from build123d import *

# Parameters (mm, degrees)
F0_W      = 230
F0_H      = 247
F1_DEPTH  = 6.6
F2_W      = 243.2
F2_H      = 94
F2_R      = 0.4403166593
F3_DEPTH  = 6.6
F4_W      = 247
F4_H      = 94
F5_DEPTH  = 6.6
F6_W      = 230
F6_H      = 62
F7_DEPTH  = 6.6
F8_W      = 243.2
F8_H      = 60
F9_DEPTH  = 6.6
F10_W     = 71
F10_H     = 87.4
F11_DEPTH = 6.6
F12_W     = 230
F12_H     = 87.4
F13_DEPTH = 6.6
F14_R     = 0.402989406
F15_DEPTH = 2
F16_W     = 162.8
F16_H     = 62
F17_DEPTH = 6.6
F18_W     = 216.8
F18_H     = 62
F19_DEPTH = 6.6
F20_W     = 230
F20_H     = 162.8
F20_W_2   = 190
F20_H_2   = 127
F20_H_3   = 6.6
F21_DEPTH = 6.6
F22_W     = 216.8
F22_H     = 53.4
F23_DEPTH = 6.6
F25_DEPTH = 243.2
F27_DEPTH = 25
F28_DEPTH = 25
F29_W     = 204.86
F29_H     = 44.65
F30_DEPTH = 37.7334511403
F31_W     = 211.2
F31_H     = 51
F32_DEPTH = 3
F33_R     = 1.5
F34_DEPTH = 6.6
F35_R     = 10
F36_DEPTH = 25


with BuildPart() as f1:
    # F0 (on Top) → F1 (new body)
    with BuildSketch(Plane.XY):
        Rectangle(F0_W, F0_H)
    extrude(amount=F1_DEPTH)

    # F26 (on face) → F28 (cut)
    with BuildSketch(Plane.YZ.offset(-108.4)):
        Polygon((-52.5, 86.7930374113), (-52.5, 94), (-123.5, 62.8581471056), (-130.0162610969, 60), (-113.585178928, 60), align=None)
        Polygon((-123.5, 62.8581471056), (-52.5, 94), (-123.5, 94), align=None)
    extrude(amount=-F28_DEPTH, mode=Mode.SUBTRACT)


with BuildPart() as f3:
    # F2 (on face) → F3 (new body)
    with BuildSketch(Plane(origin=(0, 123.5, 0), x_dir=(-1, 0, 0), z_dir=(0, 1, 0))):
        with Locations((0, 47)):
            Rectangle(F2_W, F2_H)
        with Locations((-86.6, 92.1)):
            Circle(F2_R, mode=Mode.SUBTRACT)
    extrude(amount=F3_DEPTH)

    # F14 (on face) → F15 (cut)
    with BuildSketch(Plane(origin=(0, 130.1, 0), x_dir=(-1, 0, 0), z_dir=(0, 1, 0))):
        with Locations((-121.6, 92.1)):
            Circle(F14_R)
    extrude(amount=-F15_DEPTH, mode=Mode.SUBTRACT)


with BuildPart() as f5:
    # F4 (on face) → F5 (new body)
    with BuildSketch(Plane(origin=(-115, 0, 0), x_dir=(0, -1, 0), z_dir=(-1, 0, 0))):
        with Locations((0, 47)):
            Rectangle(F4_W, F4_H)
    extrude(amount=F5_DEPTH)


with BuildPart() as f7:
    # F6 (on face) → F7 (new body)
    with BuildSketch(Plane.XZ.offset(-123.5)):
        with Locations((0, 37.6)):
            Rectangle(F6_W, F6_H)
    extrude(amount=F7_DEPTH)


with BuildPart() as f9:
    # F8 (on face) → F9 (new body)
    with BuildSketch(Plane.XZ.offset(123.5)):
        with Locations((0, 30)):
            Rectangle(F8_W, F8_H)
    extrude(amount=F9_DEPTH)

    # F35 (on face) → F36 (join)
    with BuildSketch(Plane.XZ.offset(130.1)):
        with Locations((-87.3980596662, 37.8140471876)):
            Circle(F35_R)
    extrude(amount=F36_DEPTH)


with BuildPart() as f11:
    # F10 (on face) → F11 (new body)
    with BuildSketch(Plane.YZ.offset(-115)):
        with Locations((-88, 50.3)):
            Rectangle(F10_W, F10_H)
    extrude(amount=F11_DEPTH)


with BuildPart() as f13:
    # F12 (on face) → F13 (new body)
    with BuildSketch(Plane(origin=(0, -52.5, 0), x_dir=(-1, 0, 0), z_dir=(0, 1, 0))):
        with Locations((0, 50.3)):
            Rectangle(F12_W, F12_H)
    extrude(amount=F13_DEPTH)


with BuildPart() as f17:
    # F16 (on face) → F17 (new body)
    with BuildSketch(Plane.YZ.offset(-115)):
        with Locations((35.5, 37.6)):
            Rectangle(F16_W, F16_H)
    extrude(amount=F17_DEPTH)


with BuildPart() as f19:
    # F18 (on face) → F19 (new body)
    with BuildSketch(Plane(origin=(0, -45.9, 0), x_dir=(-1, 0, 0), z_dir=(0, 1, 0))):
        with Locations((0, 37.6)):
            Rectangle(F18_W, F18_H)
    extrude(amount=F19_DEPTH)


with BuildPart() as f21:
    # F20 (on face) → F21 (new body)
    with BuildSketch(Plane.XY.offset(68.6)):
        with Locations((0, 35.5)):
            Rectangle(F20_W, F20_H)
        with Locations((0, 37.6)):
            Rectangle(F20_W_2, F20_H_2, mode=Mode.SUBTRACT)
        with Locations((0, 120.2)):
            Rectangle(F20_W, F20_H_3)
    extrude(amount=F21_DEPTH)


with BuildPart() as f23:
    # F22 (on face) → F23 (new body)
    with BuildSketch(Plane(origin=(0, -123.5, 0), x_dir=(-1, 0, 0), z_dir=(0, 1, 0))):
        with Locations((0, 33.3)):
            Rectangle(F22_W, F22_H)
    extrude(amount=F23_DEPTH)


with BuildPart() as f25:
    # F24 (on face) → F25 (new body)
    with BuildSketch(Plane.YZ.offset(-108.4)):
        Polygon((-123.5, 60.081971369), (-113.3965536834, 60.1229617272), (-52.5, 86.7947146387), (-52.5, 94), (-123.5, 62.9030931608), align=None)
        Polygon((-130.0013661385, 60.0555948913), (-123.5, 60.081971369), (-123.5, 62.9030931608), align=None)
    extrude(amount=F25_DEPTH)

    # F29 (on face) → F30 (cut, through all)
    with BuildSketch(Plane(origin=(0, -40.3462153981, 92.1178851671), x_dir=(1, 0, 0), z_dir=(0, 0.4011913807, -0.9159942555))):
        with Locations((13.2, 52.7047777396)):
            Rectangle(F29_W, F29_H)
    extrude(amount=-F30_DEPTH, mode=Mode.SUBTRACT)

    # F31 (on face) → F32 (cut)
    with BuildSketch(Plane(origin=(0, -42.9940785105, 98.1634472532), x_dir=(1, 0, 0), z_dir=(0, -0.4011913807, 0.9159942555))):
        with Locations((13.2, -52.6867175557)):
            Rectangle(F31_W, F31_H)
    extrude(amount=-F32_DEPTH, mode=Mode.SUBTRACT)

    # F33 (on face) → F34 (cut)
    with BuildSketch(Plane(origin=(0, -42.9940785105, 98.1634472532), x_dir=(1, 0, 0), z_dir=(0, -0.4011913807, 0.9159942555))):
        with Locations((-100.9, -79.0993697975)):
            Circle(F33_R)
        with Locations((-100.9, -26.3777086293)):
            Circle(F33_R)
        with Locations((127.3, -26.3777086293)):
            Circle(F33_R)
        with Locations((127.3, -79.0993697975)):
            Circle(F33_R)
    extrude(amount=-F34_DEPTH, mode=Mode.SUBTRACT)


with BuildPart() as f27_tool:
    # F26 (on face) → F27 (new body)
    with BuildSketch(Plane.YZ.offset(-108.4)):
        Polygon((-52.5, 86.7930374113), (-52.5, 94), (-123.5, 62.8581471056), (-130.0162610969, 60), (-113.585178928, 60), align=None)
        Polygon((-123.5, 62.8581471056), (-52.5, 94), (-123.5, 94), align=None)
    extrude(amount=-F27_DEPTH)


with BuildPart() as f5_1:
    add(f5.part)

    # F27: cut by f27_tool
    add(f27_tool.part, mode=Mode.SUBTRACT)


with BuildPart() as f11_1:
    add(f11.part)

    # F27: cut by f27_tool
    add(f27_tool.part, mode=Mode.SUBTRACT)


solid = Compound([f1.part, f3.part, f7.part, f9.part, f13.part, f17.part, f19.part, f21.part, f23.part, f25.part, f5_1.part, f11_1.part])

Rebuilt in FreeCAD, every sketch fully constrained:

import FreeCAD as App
import Part
import Sketcher

V = App.Vector
Q = App.Units.Quantity

doc = App.newDocument("Part")
body = doc.addObject("PartDesign::Body", "Body")

sketch1 = body.newObject("Sketcher::SketchObject", "Sketch")
sketch1.AttachmentSupport = (doc.getObject("XY_Plane"), [""])
sketch1.MapMode = "FlatFace"
sketch1.addGeometry([
    Part.LineSegment(V(-115, 124, 0), V(-115, -124, 0)),
    Part.LineSegment(V(-115, -124, 0), V(115, -124, 0)),
    Part.LineSegment(V(115, -124, 0), V(115, 124, 0)),
    Part.LineSegment(V(115, 124, 0), V(-115, 124, 0)),
], False)
sketch1.addConstraint([
    Sketcher.Constraint("Coincident", 0, 2, 1, 1),
    Sketcher.Constraint("Coincident", 1, 2, 2, 1),
    Sketcher.Constraint("Coincident", 2, 2, 3, 1),
    Sketcher.Constraint("Coincident", 3, 2, 0, 1),
    Sketcher.Constraint("Vertical", 0),
    Sketcher.Constraint("Horizontal", 1),
    Sketcher.Constraint("Vertical", 2),
    Sketcher.Constraint("Horizontal", 3),
    Sketcher.Constraint("Symmetric", 0, 2, 2, 2, -1, 1),
    Sketcher.Constraint("DistanceX", 1, 1, 1, 2, Q("230 mm")),
    Sketcher.Constraint("DistanceY", 0, 2, 0, 1, Q("247 mm")),
])
pad1 = body.newObject("PartDesign::Pad", "Pad")
pad1.Profile = sketch1
pad1.Length = 6.6

sketch2 = body.newObject("Sketcher::SketchObject", "Sketch001")
sketch2.AttachmentSupport = (doc.getObject("YZ_Plane"), [""])
sketch2.MapMode = "FlatFace"
sketch2.AttachmentOffset = App.Placement(V(0, 0, -108.4), App.Rotation())
sketch2.addGeometry([
    Part.LineSegment(V(-52, 87, 0), V(-52, 94, 0)),
    Part.LineSegment(V(-52, 94, 0), V(-124, 94, 0)),
    Part.LineSegment(V(-124, 94, 0), V(-124, 63, 0)),
    Part.LineSegment(V(-124, 63, 0), V(-130, 60, 0)),
    Part.LineSegment(V(-130, 60, 0), V(-114, 60, 0)),
    Part.LineSegment(V(-114, 60, 0), V(-52, 87, 0)),
], False)
sketch2.addConstraint([
    Sketcher.Constraint("Coincident", 0, 2, 1, 1),
    Sketcher.Constraint("Coincident", 1, 2, 2, 1),
    Sketcher.Constraint("Coincident", 2, 2, 3, 1),
    Sketcher.Constraint("Coincident", 3, 2, 4, 1),
    Sketcher.Constraint("Coincident", 4, 2, 5, 1),
    Sketcher.Constraint("Coincident", 5, 2, 0, 1),
    Sketcher.Constraint("Vertical", 0),
    Sketcher.Constraint("Horizontal", 1),
    Sketcher.Constraint("Vertical", 2),
    Sketcher.Constraint("Horizontal", 4),
    Sketcher.Constraint("Parallel", 3, 5),
    Sketcher.Constraint("DistanceX", 1, 2, 1, 1, Q("71 mm")),
    Sketcher.Constraint("DistanceY", -1, 1, 0, 2, Q("94 mm")),
    Sketcher.Constraint("DistanceY", -1, 1, 3, 2, Q("60 mm")),
    Sketcher.Constraint("DistanceX", 0, 2, -1, 1, Q("52.5 mm")),
    Sketcher.Constraint("Distance", 5, Q("66.702818 mm")),
    Sketcher.Constraint("DistanceX", 4, 1, 4, 2, Q("16.431082 mm")),
    Sketcher.Constraint("DistanceY", 0, 1, 0, 2, Q("7.206963 mm")),
])
pocket1 = body.newObject("PartDesign::Pocket", "Pocket")
pocket1.Profile = sketch2
pocket1.Length = 25
body2 = doc.addObject("PartDesign::Body", "Body001")

sketch3 = body2.newObject("Sketcher::SketchObject", "Sketch002")
sketch3.AttachmentSupport = (doc.getObject("XZ_Plane001"), [""])
sketch3.MapMode = "FlatFace"
sketch3.AttachmentOffset = App.Placement(V(0, 0, -123.5), App.Rotation())
sketch3.addGeometry([
    Part.LineSegment(V(121.6, 94, 0), V(121.6, 0, 0)),
    Part.LineSegment(V(121.6, 0, 0), V(-121.6, 0, 0)),
    Part.LineSegment(V(-121.6, 0, 0), V(-121.6, 94, 0)),
    Part.LineSegment(V(-121.6, 94, 0), V(121.6, 94, 0)),
    Part.Circle(V(86.6, 92.1, 0), V(0, 0, 1), 0.44),
], False)
sketch3.addConstraint([
    Sketcher.Constraint("Coincident", 0, 2, 1, 1),
    Sketcher.Constraint("Coincident", 1, 2, 2, 1),
    Sketcher.Constraint("Coincident", 2, 2, 3, 1),
    Sketcher.Constraint("Coincident", 3, 2, 0, 1),
    Sketcher.Constraint("Vertical", 0),
    Sketcher.Constraint("Horizontal", 1),
    Sketcher.Constraint("Vertical", 2),
    Sketcher.Constraint("Horizontal", 3),
    Sketcher.Constraint("Symmetric", 0, 2, 1, 2, -1, 1),
    Sketcher.Constraint("DistanceY", 0, 2, 0, 1, Q("94 mm")),
    Sketcher.Constraint("DistanceX", 1, 2, 1, 1, Q("243.2 mm")),
    Sketcher.Constraint("DistanceX", 4, 3, 0, 2, Q("35 mm")),
    Sketcher.Constraint("DistanceY", -1, 1, 4, 3, Q("92.1 mm")),
    Sketcher.Constraint("Diameter", 4, Q("0.880633 mm")),
])
pad2 = body2.newObject("PartDesign::Pad", "Pad001")
pad2.Profile = sketch3
pad2.Length = 6.6
pad2.Reversed = True

sketch4 = body2.newObject("Sketcher::SketchObject", "Sketch003")
sketch4.AttachmentSupport = (doc.getObject("XZ_Plane001"), [""])
sketch4.MapMode = "FlatFace"
sketch4.AttachmentOffset = App.Placement(V(0, 0, -130.1), App.Rotation())
sketch4.addGeometry(Part.Circle(V(121.6, 92.1, 0), V(0, 0, 1), 0.4), False)
sketch4.addConstraint([
    Sketcher.Constraint("DistanceX", -1, 1, 0, 3, Q("121.6 mm")),
    Sketcher.Constraint("DistanceY", -1, 1, 0, 3, Q("92.1 mm")),
    Sketcher.Constraint("Diameter", 0, Q("0.805979 mm")),
])
pocket2 = body2.newObject("PartDesign::Pocket", "Pocket001")
pocket2.Profile = sketch4
pocket2.Length = 2
pocket2.Reversed = True
body3 = doc.addObject("PartDesign::Body", "Body002")

sketch5 = body3.newObject("Sketcher::SketchObject", "Sketch004")
sketch5.AttachmentSupport = (doc.getObject("YZ_Plane002"), [""])
sketch5.MapMode = "FlatFace"
sketch5.AttachmentOffset = App.Placement(V(0, 0, -115), App.Rotation())
sketch5.addGeometry([
    Part.LineSegment(V(124, 94, 0), V(124, 0, 0)),
    Part.LineSegment(V(124, 0, 0), V(-124, 0, 0)),
    Part.LineSegment(V(-124, 0, 0), V(-124, 94, 0)),
    Part.LineSegment(V(-124, 94, 0), V(124, 94, 0)),
], False)
sketch5.addConstraint([
    Sketcher.Constraint("Coincident", 0, 2, 1, 1),
    Sketcher.Constraint("Coincident", 1, 2, 2, 1),
    Sketcher.Constraint("Coincident", 2, 2, 3, 1),
    Sketcher.Constraint("Coincident", 3, 2, 0, 1),
    Sketcher.Constraint("Vertical", 0),
    Sketcher.Constraint("Horizontal", 1),
    Sketcher.Constraint("Vertical", 2),
    Sketcher.Constraint("Horizontal", 3),
    Sketcher.Constraint("Symmetric", 0, 2, 1, 2, -1, 1),
    Sketcher.Constraint("DistanceX", 1, 2, 1, 1, Q("247 mm")),
    Sketcher.Constraint("DistanceY", 0, 2, 0, 1, Q("94 mm")),
])
pad3 = body3.newObject("PartDesign::Pad", "Pad002")
pad3.Profile = sketch5
pad3.Length = 6.6
pad3.Reversed = True
body4 = doc.addObject("PartDesign::Body", "Body003")

sketch6 = body4.newObject("Sketcher::SketchObject", "Sketch005")
sketch6.AttachmentSupport = (doc.getObject("XZ_Plane003"), [""])
sketch6.MapMode = "FlatFace"
sketch6.AttachmentOffset = App.Placement(V(0, 0, -123.5), App.Rotation())
sketch6.addGeometry([
    Part.LineSegment(V(-115, 69, 0), V(-115, 7, 0)),
    Part.LineSegment(V(-115, 7, 0), V(115, 7, 0)),
    Part.LineSegment(V(115, 7, 0), V(115, 69, 0)),
    Part.LineSegment(V(115, 69, 0), V(-115, 69, 0)),
], False)
sketch6.addConstraint([
    Sketcher.Constraint("Coincident", 0, 2, 1, 1),
    Sketcher.Constraint("Coincident", 1, 2, 2, 1),
    Sketcher.Constraint("Coincident", 2, 2, 3, 1),
    Sketcher.Constraint("Coincident", 3, 2, 0, 1),
    Sketcher.Constraint("Vertical", 0),
    Sketcher.Constraint("Horizontal", 1),
    Sketcher.Constraint("Vertical", 2),
    Sketcher.Constraint("Horizontal", 3),
    Sketcher.Constraint("DistanceX", 1, 1, 1, 2, Q("230 mm")),
    Sketcher.Constraint("DistanceY", 0, 2, 0, 1, Q("62 mm")),
    Sketcher.Constraint("DistanceX", 0, 2, -1, 1, Q("115 mm")),
    Sketcher.Constraint("DistanceY", -1, 1, 0, 2, Q("6.6 mm")),
])
pad4 = body4.newObject("PartDesign::Pad", "Pad003")
pad4.Profile = sketch6
pad4.Length = 6.6
body5 = doc.addObject("PartDesign::Body", "Body004")

sketch7 = body5.newObject("Sketcher::SketchObject", "Sketch006")
sketch7.AttachmentSupport = (doc.getObject("XZ_Plane004"), [""])
sketch7.MapMode = "FlatFace"
sketch7.AttachmentOffset = App.Placement(V(0, 0, 123.5), App.Rotation())
sketch7.addGeometry([
    Part.LineSegment(V(-122, 60, 0), V(-122, 0, 0)),
    Part.LineSegment(V(-122, 0, 0), V(122, 0, 0)),
    Part.LineSegment(V(122, 0, 0), V(122, 60, 0)),
    Part.LineSegment(V(122, 60, 0), V(-122, 60, 0)),
], False)
sketch7.addConstraint([
    Sketcher.Constraint("Coincident", 0, 2, 1, 1),
    Sketcher.Constraint("Coincident", 1, 2, 2, 1),
    Sketcher.Constraint("Coincident", 2, 2, 3, 1),
    Sketcher.Constraint("Coincident", 3, 2, 0, 1),
    Sketcher.Constraint("Vertical", 0),
    Sketcher.Constraint("Horizontal", 1),
    Sketcher.Constraint("Vertical", 2),
    Sketcher.Constraint("Horizontal", 3),
    Sketcher.Constraint("Symmetric", 0, 2, 1, 2, -1, 1),
    Sketcher.Constraint("DistanceY", 0, 2, 0, 1, Q("60 mm")),
    Sketcher.Constraint("DistanceX", 1, 1, 1, 2, Q("243.2 mm")),
])
pad5 = body5.newObject("PartDesign::Pad", "Pad004")
pad5.Profile = sketch7
pad5.Length = 6.6

sketch8 = body5.newObject("Sketcher::SketchObject", "Sketch007")
sketch8.AttachmentSupport = (doc.getObject("XZ_Plane004"), [""])
sketch8.MapMode = "FlatFace"
sketch8.AttachmentOffset = App.Placement(V(0, 0, 130.1), App.Rotation())
sketch8.addGeometry(Part.Circle(V(-87, 38, 0), V(0, 0, 1), 10), False)
sketch8.addConstraint([
    Sketcher.Constraint("Diameter", 0, Q("20 mm")),
    Sketcher.Constraint("DistanceX", 0, 3, -1, 1, Q("87.39806 mm")),
    Sketcher.Constraint("DistanceY", -1, 1, 0, 3, Q("37.814047 mm")),
])
pad6 = body5.newObject("PartDesign::Pad", "Pad005")
pad6.Profile = sketch8
pad6.Length = 25
body6 = doc.addObject("PartDesign::Body", "Body005")

sketch9 = body6.newObject("Sketcher::SketchObject", "Sketch008")
sketch9.AttachmentSupport = (doc.getObject("YZ_Plane005"), [""])
sketch9.MapMode = "FlatFace"
sketch9.AttachmentOffset = App.Placement(V(0, 0, -115), App.Rotation())
sketch9.addGeometry([
    Part.LineSegment(V(-124, 94, 0), V(-124, 7, 0)),
    Part.LineSegment(V(-124, 7, 0), V(-52, 7, 0)),
    Part.LineSegment(V(-52, 7, 0), V(-52, 94, 0)),
    Part.LineSegment(V(-52, 94, 0), V(-124, 94, 0)),
], False)
sketch9.addConstraint([
    Sketcher.Constraint("Coincident", 0, 2, 1, 1),
    Sketcher.Constraint("Coincident", 1, 2, 2, 1),
    Sketcher.Constraint("Coincident", 2, 2, 3, 1),
    Sketcher.Constraint("Coincident", 3, 2, 0, 1),
    Sketcher.Constraint("Vertical", 0),
    Sketcher.Constraint("Horizontal", 1),
    Sketcher.Constraint("Vertical", 2),
    Sketcher.Constraint("Horizontal", 3),
    Sketcher.Constraint("DistanceX", 1, 1, 1, 2, Q("71 mm")),
    Sketcher.Constraint("DistanceY", 0, 2, 0, 1, Q("87.4 mm")),
    Sketcher.Constraint("DistanceY", -1, 1, 2, 2, Q("94 mm")),
    Sketcher.Constraint("DistanceX", 0, 2, -1, 1, Q("123.5 mm")),
])
pad7 = body6.newObject("PartDesign::Pad", "Pad006")
pad7.Profile = sketch9
pad7.Length = 6.6
body7 = doc.addObject("PartDesign::Body", "Body006")

sketch10 = body7.newObject("Sketcher::SketchObject", "Sketch009")
sketch10.AttachmentSupport = (doc.getObject("XZ_Plane006"), [""])
sketch10.MapMode = "FlatFace"
sketch10.AttachmentOffset = App.Placement(V(0, 0, 52.5), App.Rotation())
sketch10.addGeometry([
    Part.LineSegment(V(115, 94, 0), V(115, 7, 0)),
    Part.LineSegment(V(115, 7, 0), V(-115, 7, 0)),
    Part.LineSegment(V(-115, 7, 0), V(-115, 94, 0)),
    Part.LineSegment(V(-115, 94, 0), V(115, 94, 0)),
], False)
sketch10.addConstraint([
    Sketcher.Constraint("Coincident", 0, 2, 1, 1),
    Sketcher.Constraint("Coincident", 1, 2, 2, 1),
    Sketcher.Constraint("Coincident", 2, 2, 3, 1),
    Sketcher.Constraint("Coincident", 3, 2, 0, 1),
    Sketcher.Constraint("Vertical", 0),
    Sketcher.Constraint("Horizontal", 1),
    Sketcher.Constraint("Vertical", 2),
    Sketcher.Constraint("Horizontal", 3),
    Sketcher.Constraint("DistanceX", 1, 2, 1, 1, Q("230 mm")),
    Sketcher.Constraint("DistanceY", 0, 2, 0, 1, Q("87.4 mm")),
    Sketcher.Constraint("DistanceX", -1, 1, 0, 2, Q("115 mm")),
    Sketcher.Constraint("DistanceY", -1, 1, 2, 2, Q("94 mm")),
])
pad8 = body7.newObject("PartDesign::Pad", "Pad007")
pad8.Profile = sketch10
pad8.Length = 6.6
pad8.Reversed = True
body8 = doc.addObject("PartDesign::Body", "Body007")

sketch11 = body8.newObject("Sketcher::SketchObject", "Sketch010")
sketch11.AttachmentSupport = (doc.getObject("YZ_Plane007"), [""])
sketch11.MapMode = "FlatFace"
sketch11.AttachmentOffset = App.Placement(V(0, 0, -115), App.Rotation())
sketch11.addGeometry([
    Part.LineSegment(V(-46, 69, 0), V(-46, 7, 0)),
    Part.LineSegment(V(-46, 7, 0), V(117, 7, 0)),
    Part.LineSegment(V(117, 7, 0), V(117, 69, 0)),
    Part.LineSegment(V(117, 69, 0), V(-46, 69, 0)),
], False)
sketch11.addConstraint([
    Sketcher.Constraint("Coincident", 0, 2, 1, 1),
    Sketcher.Constraint("Coincident", 1, 2, 2, 1),
    Sketcher.Constraint("Coincident", 2, 2, 3, 1),
    Sketcher.Constraint("Coincident", 3, 2, 0, 1),
    Sketcher.Constraint("Vertical", 0),
    Sketcher.Constraint("Horizontal", 1),
    Sketcher.Constraint("Vertical", 2),
    Sketcher.Constraint("Horizontal", 3),
    Sketcher.Constraint("DistanceY", 0, 2, 0, 1, Q("62 mm")),
    Sketcher.Constraint("DistanceX", 1, 1, 1, 2, Q("162.8 mm")),
    Sketcher.Constraint("DistanceX", 0, 2, -1, 1, Q("45.9 mm")),
    Sketcher.Constraint("DistanceY", -1, 1, 0, 2, Q("6.6 mm")),
])
pad9 = body8.newObject("PartDesign::Pad", "Pad008")
pad9.Profile = sketch11
pad9.Length = 6.6
body9 = doc.addObject("PartDesign::Body", "Body008")

sketch12 = body9.newObject("Sketcher::SketchObject", "Sketch011")
sketch12.AttachmentSupport = (doc.getObject("XZ_Plane008"), [""])
sketch12.MapMode = "FlatFace"
sketch12.AttachmentOffset = App.Placement(V(0, 0, 45.9), App.Rotation())
sketch12.addGeometry([
    Part.LineSegment(V(108, 69, 0), V(108, 7, 0)),
    Part.LineSegment(V(108, 7, 0), V(-108, 7, 0)),
    Part.LineSegment(V(-108, 7, 0), V(-108, 69, 0)),
    Part.LineSegment(V(-108, 69, 0), V(108, 69, 0)),
], False)
sketch12.addConstraint([
    Sketcher.Constraint("Coincident", 0, 2, 1, 1),
    Sketcher.Constraint("Coincident", 1, 2, 2, 1),
    Sketcher.Constraint("Coincident", 2, 2, 3, 1),
    Sketcher.Constraint("Coincident", 3, 2, 0, 1),
    Sketcher.Constraint("Vertical", 0),
    Sketcher.Constraint("Horizontal", 1),
    Sketcher.Constraint("Vertical", 2),
    Sketcher.Constraint("Horizontal", 3),
    Sketcher.Constraint("DistanceY", 0, 2, 0, 1, Q("62 mm")),
    Sketcher.Constraint("DistanceX", 1, 2, 1, 1, Q("216.8 mm")),
    Sketcher.Constraint("DistanceX", -1, 1, 0, 2, Q("108.4 mm")),
    Sketcher.Constraint("DistanceY", -1, 1, 0, 2, Q("6.6 mm")),
])
pad10 = body9.newObject("PartDesign::Pad", "Pad009")
pad10.Profile = sketch12
pad10.Length = 6.6
pad10.Reversed = True
body10 = doc.addObject("PartDesign::Body", "Body009")

sketch13 = body10.newObject("Sketcher::SketchObject", "Sketch012")
sketch13.AttachmentSupport = (doc.getObject("XY_Plane009"), [""])
sketch13.MapMode = "FlatFace"
sketch13.AttachmentOffset = App.Placement(V(0, 0, 68.6), App.Rotation())
sketch13.addGeometry([
    Part.LineSegment(V(-115, -46, 0), V(115, -46, 0)),
    Part.LineSegment(V(115, -46, 0), V(115, 124, 0)),
    Part.LineSegment(V(115, 124, 0), V(-115, 124, 0)),
    Part.LineSegment(V(-115, 124, 0), V(-115, -46, 0)),
    Part.LineSegment(V(95, -26, 0), V(-95, -26, 0)),
    Part.LineSegment(V(-95, -26, 0), V(-95, 101, 0)),
    Part.LineSegment(V(-95, 101, 0), V(95, 101, 0)),
    Part.LineSegment(V(95, 101, 0), V(95, -26, 0)),
], False)
sketch13.addConstraint([
    Sketcher.Constraint("Coincident", 0, 2, 1, 1),
    Sketcher.Constraint("Coincident", 1, 2, 2, 1),
    Sketcher.Constraint("Coincident", 2, 2, 3, 1),
    Sketcher.Constraint("Coincident", 3, 2, 0, 1),
    Sketcher.Constraint("Coincident", 4, 2, 5, 1),
    Sketcher.Constraint("Coincident", 5, 2, 6, 1),
    Sketcher.Constraint("Coincident", 6, 2, 7, 1),
    Sketcher.Constraint("Coincident", 7, 2, 4, 1),
    Sketcher.Constraint("Horizontal", 0),
    Sketcher.Constraint("Vertical", 1),
    Sketcher.Constraint("Horizontal", 2),
    Sketcher.Constraint("Vertical", 3),
    Sketcher.Constraint("Horizontal", 4),
    Sketcher.Constraint("Vertical", 5),
    Sketcher.Constraint("Horizontal", 6),
    Sketcher.Constraint("Vertical", 7),
    Sketcher.Constraint("DistanceX", 0, 1, 0, 2, Q("230 mm")),
    Sketcher.Constraint("DistanceX", 4, 2, 4, 1, Q("190 mm")),
    Sketcher.Constraint("DistanceY", 5, 1, 5, 2, Q("127 mm")),
    Sketcher.Constraint("DistanceY", 1, 1, 1, 2, Q("169.4 mm")),
    Sketcher.Constraint("DistanceX", -1, 1, 0, 2, Q("115 mm")),
    Sketcher.Constraint("DistanceX", 4, 2, -1, 1, Q("95 mm")),
    Sketcher.Constraint("DistanceY", 3, 2, 4, 2, Q("20 mm")),
    Sketcher.Constraint("DistanceY", 0, 2, -1, 1, Q("45.9 mm")),
])
pad11 = body10.newObject("PartDesign::Pad", "Pad010")
pad11.Profile = sketch13
pad11.Length = 6.6
body11 = doc.addObject("PartDesign::Body", "Body010")

sketch14 = body11.newObject("Sketcher::SketchObject", "Sketch013")
sketch14.AttachmentSupport = (doc.getObject("XZ_Plane010"), [""])
sketch14.MapMode = "FlatFace"
sketch14.AttachmentOffset = App.Placement(V(0, 0, 123.5), App.Rotation())
sketch14.addGeometry([
    Part.LineSegment(V(108, 60, 0), V(108, 7, 0)),
    Part.LineSegment(V(108, 7, 0), V(-108, 7, 0)),
    Part.LineSegment(V(-108, 7, 0), V(-108, 60, 0)),
    Part.LineSegment(V(-108, 60, 0), V(108, 60, 0)),
], False)
sketch14.addConstraint([
    Sketcher.Constraint("Coincident", 0, 2, 1, 1),
    Sketcher.Constraint("Coincident", 1, 2, 2, 1),
    Sketcher.Constraint("Coincident", 2, 2, 3, 1),
    Sketcher.Constraint("Coincident", 3, 2, 0, 1),
    Sketcher.Constraint("Vertical", 0),
    Sketcher.Constraint("Horizontal", 1),
    Sketcher.Constraint("Vertical", 2),
    Sketcher.Constraint("Horizontal", 3),
    Sketcher.Constraint("DistanceX", 1, 2, 1, 1, Q("216.8 mm")),
    Sketcher.Constraint("DistanceY", 0, 2, 0, 1, Q("53.4 mm")),
    Sketcher.Constraint("DistanceY", -1, 1, 2, 2, Q("60 mm")),
    Sketcher.Constraint("DistanceX", -1, 1, 0, 2, Q("108.4 mm")),
])
pad12 = body11.newObject("PartDesign::Pad", "Pad011")
pad12.Profile = sketch14
pad12.Length = 6.6
pad12.Reversed = True
body12 = doc.addObject("PartDesign::Body", "Body011")

sketch15 = body12.newObject("Sketcher::SketchObject", "Sketch014")
sketch15.AttachmentSupport = (doc.getObject("YZ_Plane011"), [""])
sketch15.MapMode = "FlatFace"
sketch15.AttachmentOffset = App.Placement(V(0, 0, -108.4), App.Rotation())
sketch15.addGeometry([
    Part.LineSegment(V(-124, 60, 0), V(-113, 60, 0)),
    Part.LineSegment(V(-113, 60, 0), V(-52, 87, 0)),
    Part.LineSegment(V(-52, 87, 0), V(-52, 94, 0)),
    Part.LineSegment(V(-52, 94, 0), V(-124, 63, 0)),
    Part.LineSegment(V(-124, 63, 0), V(-130, 60, 0)),
    Part.LineSegment(V(-130, 60, 0), V(-124, 60, 0)),
], False)
sketch15.addConstraint([
    Sketcher.Constraint("Coincident", 0, 2, 1, 1),
    Sketcher.Constraint("Coincident", 1, 2, 2, 1),
    Sketcher.Constraint("Coincident", 2, 2, 3, 1),
    Sketcher.Constraint("Coincident", 3, 2, 4, 1),
    Sketcher.Constraint("Coincident", 4, 2, 5, 1),
    Sketcher.Constraint("Coincident", 5, 2, 0, 1),
    Sketcher.Constraint("Vertical", 2),
    Sketcher.Constraint("Parallel", 1, 3),
    Sketcher.Constraint("Parallel", 3, 4),
    Sketcher.Constraint("Parallel", 0, 5),
    Sketcher.Constraint("Vertical", 3, 2, 5, 2),
    Sketcher.Constraint("DistanceY", -1, 1, 2, 2, Q("94 mm")),
    Sketcher.Constraint("DistanceX", 3, 2, 1, 2, Q("71 mm")),
    Sketcher.Constraint("DistanceX", 1, 2, -1, 1, Q("52.5 mm")),
    Sketcher.Constraint("DistanceY", 4, 2, 3, 2, Q("2.847498 mm")),
    Sketcher.Constraint("Distance", 0, Q("10.103529 mm")),
    Sketcher.Constraint("Distance", 1, Q("66.481371 mm")),
    Sketcher.Constraint("DistanceY", 2, 1, 2, 2, Q("7.205285 mm")),
])
pad13 = body12.newObject("PartDesign::Pad", "Pad012")
pad13.Profile = sketch15
pad13.Length = 243.2

sketch16 = body12.newObject("Sketcher::SketchObject", "Sketch015")
sketch16.Placement = App.Placement(V(0, -40.346215, 92.117885), App.Rotation(V(1, 0, 0), V(0, -0.915994255, -0.401191381), V(0, 0.401191381, -0.915994255), "ZXY"))
sketch16.addGeometry([
    Part.LineSegment(V(-89, 75, 0), V(-89, 30, 0)),
    Part.LineSegment(V(-89, 30, 0), V(116, 30, 0)),
    Part.LineSegment(V(116, 30, 0), V(116, 75, 0)),
    Part.LineSegment(V(116, 75, 0), V(-89, 75, 0)),
], False)
sketch16.addConstraint([
    Sketcher.Constraint("Coincident", 0, 2, 1, 1),
    Sketcher.Constraint("Coincident", 1, 2, 2, 1),
    Sketcher.Constraint("Coincident", 2, 2, 3, 1),
    Sketcher.Constraint("Coincident", 3, 2, 0, 1),
    Sketcher.Constraint("Vertical", 0),
    Sketcher.Constraint("Horizontal", 1),
    Sketcher.Constraint("Vertical", 2),
    Sketcher.Constraint("Horizontal", 3),
    Sketcher.Constraint("DistanceX", 1, 1, 1, 2, Q("204.86 mm")),
    Sketcher.Constraint("DistanceY", 0, 2, 0, 1, Q("44.65 mm")),
    Sketcher.Constraint("DistanceX", 0, 2, -1, 1, Q("89.23 mm")),
    Sketcher.Constraint("DistanceY", -1, 1, 0, 2, Q("30.379778 mm")),
])
pocket3 = body12.newObject("PartDesign::Pocket", "Pocket002")
pocket3.Profile = sketch16
pocket3.Type = "ThroughAll"

sketch17 = body12.newObject("Sketcher::SketchObject", "Sketch016")
sketch17.Placement = App.Placement(V(0, -42.994079, 98.163447), App.Rotation(V(1, 0, 0), V(0, 0.915994255, 0.401191381), V(0, -0.401191381, 0.915994255), "ZXY"))
sketch17.addGeometry([
    Part.LineSegment(V(-92, -27, 0), V(-92, -78, 0)),
    Part.LineSegment(V(-92, -78, 0), V(119, -78, 0)),
    Part.LineSegment(V(119, -78, 0), V(119, -27, 0)),
    Part.LineSegment(V(119, -27, 0), V(-92, -27, 0)),
], False)
sketch17.addConstraint([
    Sketcher.Constraint("Coincident", 0, 2, 1, 1),
    Sketcher.Constraint("Coincident", 1, 2, 2, 1),
    Sketcher.Constraint("Coincident", 2, 2, 3, 1),
    Sketcher.Constraint("Coincident", 3, 2, 0, 1),
    Sketcher.Constraint("Vertical", 0),
    Sketcher.Constraint("Horizontal", 1),
    Sketcher.Constraint("Vertical", 2),
    Sketcher.Constraint("Horizontal", 3),
    Sketcher.Constraint("DistanceY", 0, 2, 0, 1, Q("51 mm")),
    Sketcher.Constraint("DistanceX", 1, 1, 1, 2, Q("211.2 mm")),
    Sketcher.Constraint("DistanceX", 0, 2, -1, 1, Q("92.4 mm")),
    Sketcher.Constraint("DistanceY", 0, 2, -1, 1, Q("78.186718 mm")),
])
pocket4 = body12.newObject("PartDesign::Pocket", "Pocket003")
pocket4.Profile = sketch17
pocket4.Length = 3

sketch18 = body12.newObject("Sketcher::SketchObject", "Sketch017")
sketch18.Placement = App.Placement(V(0, -42.994079, 98.163447), App.Rotation(V(1, 0, 0), V(0, 0.915994255, 0.401191381), V(0, -0.401191381, 0.915994255), "ZXY"))
sketch18.addGeometry([
    Part.Circle(V(-100.9, -79.1, 0), V(0, 0, 1), 1.5),
    Part.Circle(V(-100.9, -26.4, 0), V(0, 0, 1), 1.5),
    Part.Circle(V(127.3, -26.4, 0), V(0, 0, 1), 1.5),
    Part.Circle(V(127.3, -79.1, 0), V(0, 0, 1), 1.5),
], False)
sketch18.addConstraint([
    Sketcher.Constraint("Equal", 0, 1),
    Sketcher.Constraint("Equal", 1, 2),
    Sketcher.Constraint("Equal", 2, 3),
    Sketcher.Constraint("Horizontal", 1, 3, 2, 3),
    Sketcher.Constraint("Horizontal", 0, 3, 3, 3),
    Sketcher.Constraint("Vertical", 0, 3, 1, 3),
    Sketcher.Constraint("Vertical", 2, 3, 3, 3),
    Sketcher.Constraint("Diameter", 0, Q("3 mm")),
    Sketcher.Constraint("DistanceX", 0, 3, -1, 1, Q("100.9 mm")),
    Sketcher.Constraint("DistanceX", -1, 1, 2, 3, Q("127.3 mm")),
    Sketcher.Constraint("DistanceY", 0, 3, -1, 1, Q("79.09937 mm")),
    Sketcher.Constraint("DistanceY", 1, 3, -1, 1, Q("26.377709 mm")),
])
pocket5 = body12.newObject("PartDesign::Pocket", "Pocket004")
pocket5.Profile = sketch18
pocket5.Length = 6.6
body13 = doc.addObject("PartDesign::Body", "Body012")

sketch19 = body13.newObject("Sketcher::SketchObject", "Sketch018")
sketch19.AttachmentSupport = (doc.getObject("YZ_Plane012"), [""])
sketch19.MapMode = "FlatFace"
sketch19.AttachmentOffset = App.Placement(V(0, 0, -108.4), App.Rotation())
sketch19.addGeometry([
    Part.LineSegment(V(-52, 87, 0), V(-52, 94, 0)),
    Part.LineSegment(V(-52, 94, 0), V(-124, 94, 0)),
    Part.LineSegment(V(-124, 94, 0), V(-124, 63, 0)),
    Part.LineSegment(V(-124, 63, 0), V(-130, 60, 0)),
    Part.LineSegment(V(-130, 60, 0), V(-114, 60, 0)),
    Part.LineSegment(V(-114, 60, 0), V(-52, 87, 0)),
], False)
sketch19.addConstraint([
    Sketcher.Constraint("Coincident", 0, 2, 1, 1),
    Sketcher.Constraint("Coincident", 1, 2, 2, 1),
    Sketcher.Constraint("Coincident", 2, 2, 3, 1),
    Sketcher.Constraint("Coincident", 3, 2, 4, 1),
    Sketcher.Constraint("Coincident", 4, 2, 5, 1),
    Sketcher.Constraint("Coincident", 5, 2, 0, 1),
    Sketcher.Constraint("Vertical", 0),
    Sketcher.Constraint("Horizontal", 1),
    Sketcher.Constraint("Vertical", 2),
    Sketcher.Constraint("Horizontal", 4),
    Sketcher.Constraint("Parallel", 3, 5),
    Sketcher.Constraint("DistanceX", 1, 2, 1, 1, Q("71 mm")),
    Sketcher.Constraint("DistanceY", -1, 1, 0, 2, Q("94 mm")),
    Sketcher.Constraint("DistanceY", -1, 1, 3, 2, Q("60 mm")),
    Sketcher.Constraint("DistanceX", 0, 2, -1, 1, Q("52.5 mm")),
    Sketcher.Constraint("Distance", 5, Q("66.702818 mm")),
    Sketcher.Constraint("DistanceX", 4, 1, 4, 2, Q("16.431082 mm")),
    Sketcher.Constraint("DistanceY", 0, 1, 0, 2, Q("7.206963 mm")),
])
pad14 = body13.newObject("PartDesign::Pad", "Pad013")
pad14.Profile = sketch19
pad14.Length = 25
pad14.Reversed = True
doc.recompute()

body14 = doc.addObject("PartDesign::Body", "Body013")
body14.BaseFeature = body13
boolean = body3.newObject("PartDesign::Boolean", "Boolean")
boolean.Type = "Cut"
boolean.addObjects([body14])
doc.recompute()

boolean2 = body6.newObject("PartDesign::Boolean", "Boolean001")
boolean2.Type = "Cut"
boolean2.addObjects([body13])

doc.recompute()
